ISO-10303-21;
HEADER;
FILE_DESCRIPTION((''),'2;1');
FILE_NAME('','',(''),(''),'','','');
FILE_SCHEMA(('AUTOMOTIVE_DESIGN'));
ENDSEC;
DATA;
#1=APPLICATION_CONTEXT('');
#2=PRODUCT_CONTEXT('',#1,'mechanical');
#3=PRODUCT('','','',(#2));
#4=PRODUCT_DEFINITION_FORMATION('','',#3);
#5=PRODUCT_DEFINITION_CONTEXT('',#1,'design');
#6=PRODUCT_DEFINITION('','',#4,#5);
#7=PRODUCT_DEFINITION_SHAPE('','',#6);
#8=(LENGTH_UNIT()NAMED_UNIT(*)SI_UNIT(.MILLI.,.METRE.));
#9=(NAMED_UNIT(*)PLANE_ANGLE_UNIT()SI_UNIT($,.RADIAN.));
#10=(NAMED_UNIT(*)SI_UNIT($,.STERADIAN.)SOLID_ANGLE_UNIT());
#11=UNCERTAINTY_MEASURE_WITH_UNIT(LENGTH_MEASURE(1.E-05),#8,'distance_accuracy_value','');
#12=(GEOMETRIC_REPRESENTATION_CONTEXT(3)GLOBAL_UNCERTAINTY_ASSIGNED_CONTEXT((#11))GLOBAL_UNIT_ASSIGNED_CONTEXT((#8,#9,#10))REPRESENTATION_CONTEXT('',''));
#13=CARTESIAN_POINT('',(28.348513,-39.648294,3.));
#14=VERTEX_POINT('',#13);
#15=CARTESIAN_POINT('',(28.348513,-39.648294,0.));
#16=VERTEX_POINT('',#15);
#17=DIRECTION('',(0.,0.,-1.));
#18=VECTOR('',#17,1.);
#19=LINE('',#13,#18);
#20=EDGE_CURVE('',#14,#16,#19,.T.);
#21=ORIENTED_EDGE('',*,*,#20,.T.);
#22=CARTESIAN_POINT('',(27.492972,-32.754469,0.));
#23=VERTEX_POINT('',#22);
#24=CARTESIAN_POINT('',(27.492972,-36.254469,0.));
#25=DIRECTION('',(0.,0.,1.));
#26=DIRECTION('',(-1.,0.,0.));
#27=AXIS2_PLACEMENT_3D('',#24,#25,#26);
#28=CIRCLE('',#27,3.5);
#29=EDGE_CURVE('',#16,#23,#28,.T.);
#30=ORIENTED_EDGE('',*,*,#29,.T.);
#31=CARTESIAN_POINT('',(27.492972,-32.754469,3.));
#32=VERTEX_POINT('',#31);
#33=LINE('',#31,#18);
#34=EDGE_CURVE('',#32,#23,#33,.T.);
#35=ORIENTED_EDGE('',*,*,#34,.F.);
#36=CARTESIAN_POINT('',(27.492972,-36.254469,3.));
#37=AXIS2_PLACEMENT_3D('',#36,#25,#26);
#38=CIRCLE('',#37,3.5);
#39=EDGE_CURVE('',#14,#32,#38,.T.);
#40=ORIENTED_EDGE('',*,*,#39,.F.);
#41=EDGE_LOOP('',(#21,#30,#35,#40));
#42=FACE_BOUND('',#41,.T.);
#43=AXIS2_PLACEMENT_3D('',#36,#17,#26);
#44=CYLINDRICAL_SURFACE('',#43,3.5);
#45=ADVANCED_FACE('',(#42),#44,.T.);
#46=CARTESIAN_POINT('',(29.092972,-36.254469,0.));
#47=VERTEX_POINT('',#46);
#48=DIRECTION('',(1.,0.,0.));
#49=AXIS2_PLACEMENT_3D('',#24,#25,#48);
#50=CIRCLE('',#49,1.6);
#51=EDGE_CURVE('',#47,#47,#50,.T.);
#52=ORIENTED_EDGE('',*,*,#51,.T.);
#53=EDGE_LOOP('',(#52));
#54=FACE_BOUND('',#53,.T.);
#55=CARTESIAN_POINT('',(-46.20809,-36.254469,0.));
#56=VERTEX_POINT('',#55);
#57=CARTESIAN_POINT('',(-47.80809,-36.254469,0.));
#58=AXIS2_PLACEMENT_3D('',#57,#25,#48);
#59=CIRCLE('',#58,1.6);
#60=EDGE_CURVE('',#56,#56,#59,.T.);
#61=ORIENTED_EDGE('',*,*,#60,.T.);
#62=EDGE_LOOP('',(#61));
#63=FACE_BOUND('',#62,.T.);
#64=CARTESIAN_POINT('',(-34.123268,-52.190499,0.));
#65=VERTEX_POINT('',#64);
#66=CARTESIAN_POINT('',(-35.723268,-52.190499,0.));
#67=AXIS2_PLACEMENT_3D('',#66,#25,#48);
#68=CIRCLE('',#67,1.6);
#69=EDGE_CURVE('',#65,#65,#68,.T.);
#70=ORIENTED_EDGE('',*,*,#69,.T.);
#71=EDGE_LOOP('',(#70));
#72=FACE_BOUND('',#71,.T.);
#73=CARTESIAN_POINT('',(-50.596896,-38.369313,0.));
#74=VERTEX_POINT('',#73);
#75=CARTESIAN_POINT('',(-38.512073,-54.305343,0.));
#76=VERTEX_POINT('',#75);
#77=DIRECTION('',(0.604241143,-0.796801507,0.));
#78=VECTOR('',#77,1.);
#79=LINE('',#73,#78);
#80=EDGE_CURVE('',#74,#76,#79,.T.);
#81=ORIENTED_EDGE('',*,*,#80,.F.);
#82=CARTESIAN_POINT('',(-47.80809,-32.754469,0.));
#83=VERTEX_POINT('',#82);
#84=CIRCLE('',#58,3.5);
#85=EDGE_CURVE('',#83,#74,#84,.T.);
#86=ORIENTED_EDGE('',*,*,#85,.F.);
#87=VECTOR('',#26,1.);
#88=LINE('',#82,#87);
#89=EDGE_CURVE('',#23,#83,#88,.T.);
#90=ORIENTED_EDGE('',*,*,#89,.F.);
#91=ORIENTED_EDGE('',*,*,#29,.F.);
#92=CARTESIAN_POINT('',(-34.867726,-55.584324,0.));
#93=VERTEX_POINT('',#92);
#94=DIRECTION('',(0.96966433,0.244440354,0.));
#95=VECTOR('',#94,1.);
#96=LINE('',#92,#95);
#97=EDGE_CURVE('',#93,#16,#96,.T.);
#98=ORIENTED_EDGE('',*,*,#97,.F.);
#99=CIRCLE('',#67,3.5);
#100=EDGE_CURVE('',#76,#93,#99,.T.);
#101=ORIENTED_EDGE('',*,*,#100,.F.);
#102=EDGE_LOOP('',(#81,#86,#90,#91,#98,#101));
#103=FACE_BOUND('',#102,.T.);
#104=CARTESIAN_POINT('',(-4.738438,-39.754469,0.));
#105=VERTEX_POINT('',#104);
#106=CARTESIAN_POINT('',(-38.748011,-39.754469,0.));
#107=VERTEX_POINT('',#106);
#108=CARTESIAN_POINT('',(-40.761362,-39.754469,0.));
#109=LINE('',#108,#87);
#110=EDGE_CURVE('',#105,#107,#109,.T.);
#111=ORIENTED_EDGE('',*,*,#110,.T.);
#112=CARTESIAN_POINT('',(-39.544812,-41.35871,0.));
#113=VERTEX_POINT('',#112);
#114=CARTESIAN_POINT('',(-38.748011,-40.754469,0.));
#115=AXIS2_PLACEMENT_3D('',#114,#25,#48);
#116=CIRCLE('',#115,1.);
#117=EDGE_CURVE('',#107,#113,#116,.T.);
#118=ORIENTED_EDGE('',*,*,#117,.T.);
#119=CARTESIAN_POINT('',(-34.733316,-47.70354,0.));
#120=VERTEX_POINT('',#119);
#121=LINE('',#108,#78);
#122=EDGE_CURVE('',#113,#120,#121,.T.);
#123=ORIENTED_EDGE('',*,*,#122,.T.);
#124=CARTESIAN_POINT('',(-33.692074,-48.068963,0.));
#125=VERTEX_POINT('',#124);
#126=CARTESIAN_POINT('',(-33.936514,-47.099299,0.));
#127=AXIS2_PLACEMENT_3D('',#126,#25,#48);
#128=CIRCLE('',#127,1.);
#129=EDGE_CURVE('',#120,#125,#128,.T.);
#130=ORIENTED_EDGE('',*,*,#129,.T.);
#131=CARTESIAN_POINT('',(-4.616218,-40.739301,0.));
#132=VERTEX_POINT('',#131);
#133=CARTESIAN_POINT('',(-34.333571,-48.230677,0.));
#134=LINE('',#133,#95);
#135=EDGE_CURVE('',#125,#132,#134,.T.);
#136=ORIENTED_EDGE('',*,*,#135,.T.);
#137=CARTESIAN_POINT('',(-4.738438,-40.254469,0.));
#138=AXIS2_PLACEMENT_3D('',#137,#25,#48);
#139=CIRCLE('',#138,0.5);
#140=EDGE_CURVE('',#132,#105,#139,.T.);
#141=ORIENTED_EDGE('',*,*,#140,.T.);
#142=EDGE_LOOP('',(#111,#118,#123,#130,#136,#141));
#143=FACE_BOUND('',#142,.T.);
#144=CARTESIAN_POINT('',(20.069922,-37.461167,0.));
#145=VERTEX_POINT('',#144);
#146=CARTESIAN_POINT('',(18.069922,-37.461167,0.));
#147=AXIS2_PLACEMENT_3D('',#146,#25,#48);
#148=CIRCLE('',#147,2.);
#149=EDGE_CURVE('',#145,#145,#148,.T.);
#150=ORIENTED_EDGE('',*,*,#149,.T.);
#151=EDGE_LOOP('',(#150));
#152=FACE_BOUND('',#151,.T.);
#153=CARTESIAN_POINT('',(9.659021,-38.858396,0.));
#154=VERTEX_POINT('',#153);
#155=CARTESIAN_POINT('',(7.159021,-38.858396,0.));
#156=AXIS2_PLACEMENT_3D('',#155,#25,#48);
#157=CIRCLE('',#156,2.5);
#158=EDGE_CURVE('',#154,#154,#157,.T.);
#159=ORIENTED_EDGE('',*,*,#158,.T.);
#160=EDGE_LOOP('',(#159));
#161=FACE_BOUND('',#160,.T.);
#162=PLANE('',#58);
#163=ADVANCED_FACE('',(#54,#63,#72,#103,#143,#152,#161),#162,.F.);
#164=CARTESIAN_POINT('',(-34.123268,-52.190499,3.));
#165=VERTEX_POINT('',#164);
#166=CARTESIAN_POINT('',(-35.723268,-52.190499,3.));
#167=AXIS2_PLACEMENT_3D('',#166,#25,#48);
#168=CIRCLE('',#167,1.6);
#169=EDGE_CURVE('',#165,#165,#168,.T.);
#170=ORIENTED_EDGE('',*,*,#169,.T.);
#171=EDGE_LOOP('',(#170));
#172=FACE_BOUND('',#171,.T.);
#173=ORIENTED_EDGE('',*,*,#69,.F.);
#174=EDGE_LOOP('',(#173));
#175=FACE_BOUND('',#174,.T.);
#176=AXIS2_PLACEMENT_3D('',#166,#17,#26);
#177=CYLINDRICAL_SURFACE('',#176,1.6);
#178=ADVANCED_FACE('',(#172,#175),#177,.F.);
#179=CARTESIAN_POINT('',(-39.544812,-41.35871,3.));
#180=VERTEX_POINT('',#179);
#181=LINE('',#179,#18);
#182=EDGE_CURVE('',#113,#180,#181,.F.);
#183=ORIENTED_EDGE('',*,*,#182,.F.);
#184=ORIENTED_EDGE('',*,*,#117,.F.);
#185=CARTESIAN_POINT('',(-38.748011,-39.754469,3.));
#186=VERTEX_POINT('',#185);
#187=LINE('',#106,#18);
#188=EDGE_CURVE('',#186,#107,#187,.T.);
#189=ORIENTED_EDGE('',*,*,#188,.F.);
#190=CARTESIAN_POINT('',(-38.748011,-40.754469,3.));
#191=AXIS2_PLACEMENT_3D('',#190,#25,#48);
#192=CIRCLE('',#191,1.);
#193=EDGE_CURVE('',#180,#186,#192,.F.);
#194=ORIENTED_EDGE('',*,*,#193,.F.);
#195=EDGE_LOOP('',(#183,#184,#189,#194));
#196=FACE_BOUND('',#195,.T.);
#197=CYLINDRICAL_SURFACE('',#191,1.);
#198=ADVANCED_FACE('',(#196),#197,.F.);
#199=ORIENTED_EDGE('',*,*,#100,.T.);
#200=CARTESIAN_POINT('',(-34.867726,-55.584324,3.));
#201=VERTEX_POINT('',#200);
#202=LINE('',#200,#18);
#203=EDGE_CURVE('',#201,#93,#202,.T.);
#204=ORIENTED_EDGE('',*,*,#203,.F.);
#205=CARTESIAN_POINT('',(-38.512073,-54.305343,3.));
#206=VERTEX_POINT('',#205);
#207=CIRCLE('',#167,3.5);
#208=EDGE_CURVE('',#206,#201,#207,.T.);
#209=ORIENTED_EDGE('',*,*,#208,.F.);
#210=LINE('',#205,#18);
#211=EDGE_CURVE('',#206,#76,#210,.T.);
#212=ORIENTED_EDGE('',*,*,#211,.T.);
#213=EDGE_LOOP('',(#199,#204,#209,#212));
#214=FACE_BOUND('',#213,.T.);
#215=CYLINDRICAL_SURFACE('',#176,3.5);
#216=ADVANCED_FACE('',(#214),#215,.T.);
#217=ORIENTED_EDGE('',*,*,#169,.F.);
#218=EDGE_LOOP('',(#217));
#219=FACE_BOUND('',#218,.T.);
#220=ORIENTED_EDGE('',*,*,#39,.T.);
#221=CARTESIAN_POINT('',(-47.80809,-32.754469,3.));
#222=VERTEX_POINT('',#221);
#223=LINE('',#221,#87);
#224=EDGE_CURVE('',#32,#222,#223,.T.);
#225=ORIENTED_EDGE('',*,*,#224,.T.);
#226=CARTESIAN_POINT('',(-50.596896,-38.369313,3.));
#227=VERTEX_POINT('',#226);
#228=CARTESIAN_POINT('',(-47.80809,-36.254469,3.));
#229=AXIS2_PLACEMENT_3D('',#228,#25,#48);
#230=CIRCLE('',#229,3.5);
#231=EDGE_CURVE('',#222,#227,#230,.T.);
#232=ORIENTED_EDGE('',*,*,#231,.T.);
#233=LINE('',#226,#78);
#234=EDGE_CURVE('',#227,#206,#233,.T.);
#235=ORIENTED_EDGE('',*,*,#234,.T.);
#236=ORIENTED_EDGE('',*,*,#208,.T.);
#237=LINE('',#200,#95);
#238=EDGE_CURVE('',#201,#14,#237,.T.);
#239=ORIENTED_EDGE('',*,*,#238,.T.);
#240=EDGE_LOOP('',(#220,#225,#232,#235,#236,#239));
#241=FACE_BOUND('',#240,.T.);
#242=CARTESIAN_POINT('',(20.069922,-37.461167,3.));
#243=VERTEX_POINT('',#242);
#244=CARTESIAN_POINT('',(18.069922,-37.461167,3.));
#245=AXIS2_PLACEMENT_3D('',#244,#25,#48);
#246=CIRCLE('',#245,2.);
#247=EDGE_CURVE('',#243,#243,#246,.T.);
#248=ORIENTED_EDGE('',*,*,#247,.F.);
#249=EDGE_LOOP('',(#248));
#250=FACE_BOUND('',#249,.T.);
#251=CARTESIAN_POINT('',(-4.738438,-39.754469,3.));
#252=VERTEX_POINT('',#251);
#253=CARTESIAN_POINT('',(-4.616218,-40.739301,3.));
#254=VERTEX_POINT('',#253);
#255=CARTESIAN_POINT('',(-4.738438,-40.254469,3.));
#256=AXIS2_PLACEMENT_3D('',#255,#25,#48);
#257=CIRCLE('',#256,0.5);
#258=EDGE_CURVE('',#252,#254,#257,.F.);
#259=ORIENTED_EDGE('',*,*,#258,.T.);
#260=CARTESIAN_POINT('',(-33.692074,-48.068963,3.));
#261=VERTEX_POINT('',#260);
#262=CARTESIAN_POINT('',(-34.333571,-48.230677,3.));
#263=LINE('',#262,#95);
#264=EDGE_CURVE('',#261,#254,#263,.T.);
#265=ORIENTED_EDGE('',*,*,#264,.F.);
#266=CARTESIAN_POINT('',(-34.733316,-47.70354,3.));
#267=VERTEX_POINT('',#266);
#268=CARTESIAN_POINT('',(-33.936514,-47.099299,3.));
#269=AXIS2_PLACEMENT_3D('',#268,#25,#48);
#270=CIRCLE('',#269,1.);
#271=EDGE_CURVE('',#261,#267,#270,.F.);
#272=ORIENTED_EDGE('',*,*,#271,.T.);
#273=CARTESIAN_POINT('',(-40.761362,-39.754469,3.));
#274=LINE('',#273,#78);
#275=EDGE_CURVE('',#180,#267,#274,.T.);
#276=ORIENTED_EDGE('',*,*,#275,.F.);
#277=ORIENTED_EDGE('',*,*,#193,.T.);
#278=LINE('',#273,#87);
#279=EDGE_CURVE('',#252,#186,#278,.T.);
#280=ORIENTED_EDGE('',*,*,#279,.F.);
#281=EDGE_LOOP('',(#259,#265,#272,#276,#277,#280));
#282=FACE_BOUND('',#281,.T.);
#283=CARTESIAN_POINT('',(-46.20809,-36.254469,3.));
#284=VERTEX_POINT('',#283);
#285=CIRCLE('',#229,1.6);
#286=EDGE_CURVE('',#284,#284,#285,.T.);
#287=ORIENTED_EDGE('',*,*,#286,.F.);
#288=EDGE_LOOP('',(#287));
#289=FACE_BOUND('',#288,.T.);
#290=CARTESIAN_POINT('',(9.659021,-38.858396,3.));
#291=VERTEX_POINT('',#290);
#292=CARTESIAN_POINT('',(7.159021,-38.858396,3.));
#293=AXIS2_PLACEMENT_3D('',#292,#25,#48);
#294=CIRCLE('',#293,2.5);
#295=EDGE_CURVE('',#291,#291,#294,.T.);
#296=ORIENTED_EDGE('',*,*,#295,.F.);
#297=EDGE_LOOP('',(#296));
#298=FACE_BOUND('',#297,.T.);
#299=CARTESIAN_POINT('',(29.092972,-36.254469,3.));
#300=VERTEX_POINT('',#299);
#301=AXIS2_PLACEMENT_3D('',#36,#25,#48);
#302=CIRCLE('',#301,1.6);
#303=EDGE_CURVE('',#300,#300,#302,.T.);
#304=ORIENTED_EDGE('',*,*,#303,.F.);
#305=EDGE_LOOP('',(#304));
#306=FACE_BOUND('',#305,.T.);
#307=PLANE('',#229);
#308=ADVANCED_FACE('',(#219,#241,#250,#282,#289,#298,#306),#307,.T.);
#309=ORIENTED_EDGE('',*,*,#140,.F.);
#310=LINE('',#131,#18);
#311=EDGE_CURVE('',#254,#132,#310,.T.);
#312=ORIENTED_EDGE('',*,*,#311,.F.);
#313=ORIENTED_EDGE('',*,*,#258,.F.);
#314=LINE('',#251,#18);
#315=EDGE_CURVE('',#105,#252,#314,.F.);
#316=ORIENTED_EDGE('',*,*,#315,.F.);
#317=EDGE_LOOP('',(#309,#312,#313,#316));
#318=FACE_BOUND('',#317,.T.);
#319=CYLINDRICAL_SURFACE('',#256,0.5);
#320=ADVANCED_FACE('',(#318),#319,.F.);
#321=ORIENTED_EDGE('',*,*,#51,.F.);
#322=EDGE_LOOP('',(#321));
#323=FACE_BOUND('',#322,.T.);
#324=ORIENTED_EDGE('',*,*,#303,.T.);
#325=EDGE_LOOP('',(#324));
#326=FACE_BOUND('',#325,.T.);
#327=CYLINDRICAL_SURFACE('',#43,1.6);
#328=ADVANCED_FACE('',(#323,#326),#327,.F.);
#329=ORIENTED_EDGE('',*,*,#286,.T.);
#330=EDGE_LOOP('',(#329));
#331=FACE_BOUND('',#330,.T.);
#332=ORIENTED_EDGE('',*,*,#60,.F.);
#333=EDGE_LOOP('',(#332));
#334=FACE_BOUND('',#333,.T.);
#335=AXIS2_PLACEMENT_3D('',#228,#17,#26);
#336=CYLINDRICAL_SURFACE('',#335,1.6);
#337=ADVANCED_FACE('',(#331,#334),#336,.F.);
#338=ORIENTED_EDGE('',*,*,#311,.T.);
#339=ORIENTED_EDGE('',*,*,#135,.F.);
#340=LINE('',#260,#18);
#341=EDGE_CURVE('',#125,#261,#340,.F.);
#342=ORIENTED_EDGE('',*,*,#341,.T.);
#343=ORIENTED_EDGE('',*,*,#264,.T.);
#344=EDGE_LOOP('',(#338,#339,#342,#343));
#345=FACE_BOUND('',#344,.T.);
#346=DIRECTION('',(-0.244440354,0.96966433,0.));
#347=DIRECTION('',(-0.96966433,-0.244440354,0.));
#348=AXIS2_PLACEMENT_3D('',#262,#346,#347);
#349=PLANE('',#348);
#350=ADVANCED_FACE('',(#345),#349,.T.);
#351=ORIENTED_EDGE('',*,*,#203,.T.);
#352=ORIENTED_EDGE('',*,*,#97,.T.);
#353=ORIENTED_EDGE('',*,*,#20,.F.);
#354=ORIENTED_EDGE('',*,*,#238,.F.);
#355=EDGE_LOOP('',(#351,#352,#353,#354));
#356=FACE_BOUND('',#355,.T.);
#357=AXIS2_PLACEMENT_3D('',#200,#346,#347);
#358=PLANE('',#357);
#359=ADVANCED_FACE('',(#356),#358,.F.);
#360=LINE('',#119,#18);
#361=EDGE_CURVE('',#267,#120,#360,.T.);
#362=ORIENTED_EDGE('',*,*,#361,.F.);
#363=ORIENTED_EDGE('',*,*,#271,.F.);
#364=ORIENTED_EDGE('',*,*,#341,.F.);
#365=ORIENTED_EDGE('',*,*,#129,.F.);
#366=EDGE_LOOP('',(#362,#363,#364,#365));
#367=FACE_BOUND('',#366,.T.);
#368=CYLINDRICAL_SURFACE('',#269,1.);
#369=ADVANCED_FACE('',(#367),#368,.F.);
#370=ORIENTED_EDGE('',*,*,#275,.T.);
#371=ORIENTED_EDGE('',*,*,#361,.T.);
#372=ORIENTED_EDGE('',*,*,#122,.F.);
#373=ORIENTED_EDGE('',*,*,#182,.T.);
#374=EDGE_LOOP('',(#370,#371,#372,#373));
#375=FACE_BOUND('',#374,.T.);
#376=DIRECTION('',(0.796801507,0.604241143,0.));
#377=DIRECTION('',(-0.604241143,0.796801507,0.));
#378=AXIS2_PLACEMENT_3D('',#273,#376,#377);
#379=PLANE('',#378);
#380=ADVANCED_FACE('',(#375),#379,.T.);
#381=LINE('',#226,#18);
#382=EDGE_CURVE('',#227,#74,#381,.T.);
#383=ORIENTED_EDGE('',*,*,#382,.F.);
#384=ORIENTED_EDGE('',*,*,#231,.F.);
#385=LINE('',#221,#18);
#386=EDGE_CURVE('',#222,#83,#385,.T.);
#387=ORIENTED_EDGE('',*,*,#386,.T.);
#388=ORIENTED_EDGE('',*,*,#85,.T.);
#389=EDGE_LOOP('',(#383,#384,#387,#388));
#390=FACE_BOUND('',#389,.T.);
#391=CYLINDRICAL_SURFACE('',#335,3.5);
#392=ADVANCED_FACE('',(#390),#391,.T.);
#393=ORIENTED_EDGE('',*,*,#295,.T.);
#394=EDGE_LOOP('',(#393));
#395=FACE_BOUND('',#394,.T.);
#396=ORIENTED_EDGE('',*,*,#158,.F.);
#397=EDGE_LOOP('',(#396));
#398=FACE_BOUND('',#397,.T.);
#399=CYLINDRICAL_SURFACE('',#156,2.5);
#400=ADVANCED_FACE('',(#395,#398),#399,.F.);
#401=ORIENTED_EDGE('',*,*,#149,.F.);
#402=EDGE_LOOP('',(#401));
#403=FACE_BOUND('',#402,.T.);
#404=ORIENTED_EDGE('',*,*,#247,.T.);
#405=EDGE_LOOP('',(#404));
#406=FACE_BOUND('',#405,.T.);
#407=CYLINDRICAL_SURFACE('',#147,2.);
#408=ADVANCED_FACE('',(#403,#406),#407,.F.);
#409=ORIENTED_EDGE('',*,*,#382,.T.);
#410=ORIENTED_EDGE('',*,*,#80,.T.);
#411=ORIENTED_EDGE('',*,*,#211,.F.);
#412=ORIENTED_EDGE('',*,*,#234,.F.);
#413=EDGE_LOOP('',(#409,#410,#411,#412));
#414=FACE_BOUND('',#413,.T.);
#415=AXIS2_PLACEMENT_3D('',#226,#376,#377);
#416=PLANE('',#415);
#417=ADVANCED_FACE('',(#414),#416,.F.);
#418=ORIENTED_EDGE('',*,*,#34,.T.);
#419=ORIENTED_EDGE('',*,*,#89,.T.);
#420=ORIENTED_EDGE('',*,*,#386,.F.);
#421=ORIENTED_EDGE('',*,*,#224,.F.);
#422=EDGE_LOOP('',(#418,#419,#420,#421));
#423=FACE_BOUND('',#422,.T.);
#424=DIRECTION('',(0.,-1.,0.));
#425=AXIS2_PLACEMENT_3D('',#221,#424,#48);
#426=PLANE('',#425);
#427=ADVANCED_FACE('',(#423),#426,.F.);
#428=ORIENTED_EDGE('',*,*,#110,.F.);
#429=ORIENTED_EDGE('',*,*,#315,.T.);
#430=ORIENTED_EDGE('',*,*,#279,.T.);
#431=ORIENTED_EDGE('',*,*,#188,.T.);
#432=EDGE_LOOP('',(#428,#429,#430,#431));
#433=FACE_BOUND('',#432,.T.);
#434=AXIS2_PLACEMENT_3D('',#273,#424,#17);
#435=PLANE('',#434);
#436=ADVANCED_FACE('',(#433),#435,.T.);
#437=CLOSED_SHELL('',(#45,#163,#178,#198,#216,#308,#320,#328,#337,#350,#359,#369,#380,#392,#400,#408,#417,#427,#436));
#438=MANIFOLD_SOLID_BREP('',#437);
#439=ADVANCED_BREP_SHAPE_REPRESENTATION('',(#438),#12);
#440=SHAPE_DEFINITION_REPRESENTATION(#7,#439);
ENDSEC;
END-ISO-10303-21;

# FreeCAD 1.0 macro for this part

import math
import FreeCAD as App
import Part
import Sketcher

V = App.Vector


def edges_at(feature, points):
    """Names of the edges that pass closest to the given points."""
    edges = feature.Shape.Edges
    near = lambda p: min(range(len(edges)), key=lambda i: edges[i].distToShape(Part.Vertex(*p))[0])
    return sorted({f"Edge{near(p) + 1}" for p in points})

doc = App.newDocument("Part")
params = doc.addObject("Spreadsheet::Sheet", "Params")
for row, (alias, value) in enumerate([
    ("sketch1_diameter", "3.2 mm"),
    ("sketch1_radius", "3.5 mm"),
    ("sketch1_length", "20 mm"),
    ("pad1_length", "3 mm"),
    ("fillet_radius", "0.5 mm"),
    ("fillet2_radius", "1 mm"),
    ("sketch2_diameter", "5 mm"),
    ("sketch2_diameter2", "4 mm"),
], start=1):
    params.set(f"A{row}", alias)
    params.set(f"B{row}", "=" + value)
    params.setAlias(f"B{row}", alias)

body = doc.addObject("PartDesign::Body", "Body")

# Sketch on XY plane
sketch1 = body.newObject("Sketcher::SketchObject", "Sketch")
sketch1.AttachmentSupport = (doc.getObject("XY_Plane"), [""])
sketch1.MapMode = "FlatFace"
sketch1.addGeometry([
    Part.LineSegment(V(27.492972, -32.754469, 0), V(-47.80809, -32.754469, 0)),  # 0
    Part.ArcOfCircle(Part.Circle(V(-47.80809, -36.254469, 0), V(0, 0, 1), 3.5), math.radians(90), math.radians(217.174255)),  # 1
    Part.LineSegment(V(-50.596896, -38.369313, 0), V(-38.512073, -54.305343, 0)),  # 2
    Part.ArcOfCircle(Part.Circle(V(-35.723268, -52.190499, 0), V(0, 0, 1), 3.5), math.radians(-142.825745), math.radians(-75.851237)),  # 3
    Part.LineSegment(V(-34.867726, -55.584324, 0), V(28.348513, -39.648294, 0)),  # 4
    Part.ArcOfCircle(Part.Circle(V(27.492972, -36.254469, 0), V(0, 0, 1), 3.5), math.radians(-75.851237), math.radians(90)),  # 5
    Part.Circle(V(-35.723268, -52.190499, 0), V(0, 0, 1), 1.6),  # 6
    Part.Circle(V(27.492972, -36.254469, 0), V(0, 0, 1), 1.6),  # 7
    Part.LineSegment(V(-40.761362, -39.754469, 0), V(-0.709512, -39.754469, 0)),  # 8
    Part.LineSegment(V(-0.709512, -39.754469, 0), V(-34.333571, -48.230677, 0)),  # 9
    Part.LineSegment(V(-34.333571, -48.230677, 0), V(-40.761362, -39.754469, 0)),  # 10
    Part.Circle(V(-47.80809, -36.254469, 0), V(0, 0, 1), 1.6),  # 11
], False)
sketch1.addConstraint([
    Sketcher.Constraint("Tangent", 0, 2, 1, 1),
    Sketcher.Constraint("Tangent", 1, 2, 2, 1),
    Sketcher.Constraint("Tangent", 2, 2, 3, 1),
    Sketcher.Constraint("Tangent", 3, 2, 4, 1),
    Sketcher.Constraint("Tangent", 4, 2, 5, 1),
    Sketcher.Constraint("Tangent", 5, 2, 0, 1),
    Sketcher.Constraint("Coincident", 8, 2, 9, 1),
    Sketcher.Constraint("Coincident", 9, 2, 10, 1),
    Sketcher.Constraint("Coincident", 10, 2, 8, 1),
    Sketcher.Constraint("Horizontal", 0),
    Sketcher.Constraint("Horizontal", 8),
    Sketcher.Constraint("Coincident", 6, 3, 3, 3),
    Sketcher.Constraint("Coincident", 7, 3, 5, 3),
    Sketcher.Constraint("Coincident", 11, 3, 1, 3),
    Sketcher.Constraint("Equal", 1, 3),
    Sketcher.Constraint("Equal", 3, 5),
    Sketcher.Constraint("Equal", 6, 7),
    Sketcher.Constraint("Equal", 7, 11),
    Sketcher.Constraint("Parallel", 4, 9),
    Sketcher.Constraint("Parallel", 2, 10),
    Sketcher.Constraint("Diameter", 6, 3.2),
    Sketcher.Constraint("Radius", 1, 3.5),
    Sketcher.Constraint("Distance", 2, 20.0),
    Sketcher.Constraint("DistanceY", 8, 2, 5, 2, 7.0),
    Sketcher.Constraint("DistanceX", 8, 1, 8, 2, 40.05185),
    Sketcher.Constraint("DistanceY", 3, 3, -1, 1, 52.190499),
    Sketcher.Constraint("Distance", 4, 65.193941),
    Sketcher.Constraint("Distance", 10, 10.637791),
    Sketcher.Constraint("DistanceX", 1, 3, -1, 1, 47.80809),
    Sketcher.Constraint("DistanceX", 8, 2, -1, 1, 0.709512),
])
sketch1.setExpression("Constraints[20]", "Params.sketch1_diameter")
sketch1.setExpression("Constraints[21]", "Params.sketch1_radius")
sketch1.setExpression("Constraints[22]", "Params.sketch1_length")
pad1 = body.newObject("PartDesign::Pad", "Pad")
pad1.Profile = sketch1
pad1.setExpression("Length", "Params.pad1_length")
doc.recompute()

fillet = body.newObject("PartDesign::Fillet", "Fillet")
fillet.Base = (pad1, edges_at(pad1, [(-0.71, -39.754, 1.5)]))
fillet.setExpression("Radius", "Params.fillet_radius")
doc.recompute()

fillet2 = body.newObject("PartDesign::Fillet", "Fillet001")
fillet2.Base = (fillet, edges_at(fillet, [(-40.761, -39.754, 1.5), (-34.334, -48.231, 1.5)]))
fillet2.setExpression("Radius", "Params.fillet2_radius")

# Sketch on XY plane
sketch2 = body.newObject("Sketcher::SketchObject", "Sketch001")
sketch2.AttachmentSupport = (doc.getObject("XY_Plane"), [""])
sketch2.MapMode = "FlatFace"
sketch2.AttachmentOffset = App.Placement(V(0, 0, 3), App.Rotation())
sketch2.addGeometry([
    Part.Circle(V(7.159021, -38.858396, 0), V(0, 0, 1), 2.5),
    Part.Circle(V(18.069922, -37.461167, 0), V(0, 0, 1), 2),
], False)
sketch2.addConstraint([
    Sketcher.Constraint("Diameter", 0, 5.0),
    Sketcher.Constraint("Diameter", 1, 4.0),
    Sketcher.Constraint("DistanceX", 0, 3, 1, 3, 10.910901),
    Sketcher.Constraint("DistanceX", -1, 1, 0, 3, 7.159021),
    Sketcher.Constraint("DistanceY", 0, 3, 1, 3, 1.397229),
    Sketcher.Constraint("DistanceY", 0, 3, -1, 1, 38.858396),
])
sketch2.setExpression("Constraints[0]", "Params.sketch2_diameter")
sketch2.setExpression("Constraints[1]", "Params.sketch2_diameter2")
pocket1 = body.newObject("PartDesign::Pocket", "Pocket")
pocket1.Profile = sketch2
pocket1.Type = "ThroughAll"

doc.recompute()
